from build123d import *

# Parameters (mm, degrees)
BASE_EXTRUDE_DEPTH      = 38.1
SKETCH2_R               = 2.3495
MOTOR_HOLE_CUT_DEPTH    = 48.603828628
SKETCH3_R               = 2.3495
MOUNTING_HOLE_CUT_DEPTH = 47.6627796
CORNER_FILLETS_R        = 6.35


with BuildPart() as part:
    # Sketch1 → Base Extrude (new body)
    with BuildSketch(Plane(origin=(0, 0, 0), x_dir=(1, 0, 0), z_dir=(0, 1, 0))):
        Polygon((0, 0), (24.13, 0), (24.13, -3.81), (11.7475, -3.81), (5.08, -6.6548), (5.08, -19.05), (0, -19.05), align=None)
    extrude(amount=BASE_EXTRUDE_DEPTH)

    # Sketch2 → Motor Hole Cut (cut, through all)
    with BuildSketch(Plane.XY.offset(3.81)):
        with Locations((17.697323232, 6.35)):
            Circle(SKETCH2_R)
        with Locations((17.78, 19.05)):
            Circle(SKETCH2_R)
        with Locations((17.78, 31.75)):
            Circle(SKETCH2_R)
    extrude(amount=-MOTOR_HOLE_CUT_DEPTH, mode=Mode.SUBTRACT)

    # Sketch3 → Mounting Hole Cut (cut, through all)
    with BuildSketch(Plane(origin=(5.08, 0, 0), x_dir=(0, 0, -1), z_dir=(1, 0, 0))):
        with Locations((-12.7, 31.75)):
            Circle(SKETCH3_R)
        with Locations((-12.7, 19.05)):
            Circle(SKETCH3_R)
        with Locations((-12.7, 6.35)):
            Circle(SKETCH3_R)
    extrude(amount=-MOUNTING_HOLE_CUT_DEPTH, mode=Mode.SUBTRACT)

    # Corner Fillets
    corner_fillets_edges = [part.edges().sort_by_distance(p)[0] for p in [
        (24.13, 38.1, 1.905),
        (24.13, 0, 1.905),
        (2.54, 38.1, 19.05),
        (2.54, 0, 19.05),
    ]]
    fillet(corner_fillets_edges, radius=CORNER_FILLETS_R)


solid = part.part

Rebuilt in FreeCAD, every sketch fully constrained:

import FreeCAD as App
import Part
import Sketcher
from FreeCAD import Vector
Q = App.Units.Quantity


def edges_at(feature, points):
    """Names of the edges that pass closest to the given points."""
    edges = feature.Shape.Edges
    near = lambda p: min(range(len(edges)), key=lambda i: edges[i].distToShape(Part.Vertex(*p))[0])
    return sorted({f"Edge{near(p) + 1}" for p in points})

doc = App.newDocument("Part")
body = doc.addObject("PartDesign::Body", "Body")

sketch1 = body.newObject("Sketcher::SketchObject", "Sketch")
sketch1.AttachmentSupport = (doc.getObject("XZ_Plane"), [""])
sketch1.MapMode = "FlatFace"
sketch1.addGeometry([
    Part.LineSegment(Vector(24.1, 0, 0), Vector(0, 0, 0)),
    Part.LineSegment(Vector(0, 0, 0), Vector(0, 19.1, 0)),
    Part.LineSegment(Vector(0, 19.1, 0), Vector(5.1, 19.1, 0)),
    Part.LineSegment(Vector(5.1, 19.1, 0), Vector(5.1, 6.7, 0)),
    Part.LineSegment(Vector(5.1, 6.7, 0), Vector(11.7, 3.8, 0)),
    Part.LineSegment(Vector(11.7, 3.8, 0), Vector(24.1, 3.8, 0)),
    Part.LineSegment(Vector(24.1, 3.8, 0), Vector(24.1, 0, 0)),
], False)
sketch1.addConstraint([
    Sketcher.Constraint("Coincident", 0, 2, 1, 1),
    Sketcher.Constraint("Coincident", 1, 2, 2, 1),
    Sketcher.Constraint("Coincident", 2, 2, 3, 1),
    Sketcher.Constraint("Coincident", 3, 2, 4, 1),
    Sketcher.Constraint("Coincident", 4, 2, 5, 1),
    Sketcher.Constraint("Coincident", 5, 2, 6, 1),
    Sketcher.Constraint("Coincident", 6, 2, 0, 1),
    Sketcher.Constraint("Horizontal", 0),
    Sketcher.Constraint("Vertical", 1),
    Sketcher.Constraint("Horizontal", 2),
    Sketcher.Constraint("Vertical", 3),
    Sketcher.Constraint("Horizontal", 5),
    Sketcher.Constraint("Vertical", 6),
    Sketcher.Constraint("Coincident", 0, 2, -1, 1),
    Sketcher.Constraint("DistanceX", 2, 1, 2, 2, Q("0.2 in")),
    Sketcher.Constraint("DistanceX", 0, 2, 0, 1, Q("0.95 in")),
    Sketcher.Constraint("DistanceY", 1, 1, 1, 2, Q("0.75 in")),
    Sketcher.Constraint("DistanceY", 6, 2, 6, 1, Q("0.15 in")),
    Sketcher.Constraint("DistanceY", 3, 2, 3, 1, Q("0.488 in")),
    Sketcher.Constraint("DistanceX", 5, 1, 5, 2, Q("0.4875 in")),
])
pad1 = body.newObject("PartDesign::Pad", "Pad")
pad1.Profile = sketch1
pad1.Length = Q("1.5 in")
pad1.Reversed = True

sketch2 = body.newObject("Sketcher::SketchObject", "Sketch001")
sketch2.AttachmentSupport = (doc.getObject("XY_Plane"), [""])
sketch2.MapMode = "FlatFace"
sketch2.AttachmentOffset = App.Placement(Vector(0, 0, 0.15 * 25.4), App.Rotation())
sketch2.addGeometry([
    Part.Circle(Vector(17.7, 6.3, 0), Vector(0, 0, 1), 2.3),
    Part.Circle(Vector(17.8, 19.1, 0), Vector(0, 0, 1), 2.3),
    Part.Circle(Vector(17.8, 31.8, 0), Vector(0, 0, 1), 2.3),
], False)
sketch2.addConstraint([
    Sketcher.Constraint("Equal", 0, 1),
    Sketcher.Constraint("Equal", 1, 2),
    Sketcher.Constraint("Vertical", 1, 3, 2, 3),
    Sketcher.Constraint("Diameter", 0, Q("0.185 in")),
    Sketcher.Constraint("DistanceY", 0, 3, 2, 3, Q("1 in")),
    Sketcher.Constraint("DistanceX", -1, 1, 1, 3, Q("0.7 in")),
    Sketcher.Constraint("DistanceY", 0, 3, 1, 3, Q("0.5 in")),
    Sketcher.Constraint("DistanceY", -1, 1, 0, 3, Q("0.25 in")),
    Sketcher.Constraint("DistanceX", -1, 1, 0, 3, Q("17.697323 mm")),
])
pocket1 = body.newObject("PartDesign::Pocket", "Pocket")
pocket1.Profile = sketch2
pocket1.Type = "ThroughAll"

sketch3 = body.newObject("Sketcher::SketchObject", "Sketch002")
sketch3.AttachmentSupport = (doc.getObject("YZ_Plane"), [""])
sketch3.MapMode = "FlatFace"
sketch3.AttachmentOffset = App.Placement(Vector(0, 0, 0.2 * 25.4), App.Rotation())
sketch3.addGeometry([
    Part.Circle(Vector(31.8, 12.7, 0), Vector(0, 0, 1), 2.3),
    Part.Circle(Vector(19.1, 12.7, 0), Vector(0, 0, 1), 2.3),
    Part.Circle(Vector(6.3, 12.7, 0), Vector(0, 0, 1), 2.3),
], False)
sketch3.addConstraint([
    Sketcher.Constraint("Equal", 0, 1),
    Sketcher.Constraint("Equal", 1, 2),
    Sketcher.Constraint("Horizontal", 0, 3, 1, 3),
    Sketcher.Constraint("Horizontal", 1, 3, 2, 3),
    Sketcher.Constraint("Diameter", 0, Q("0.185 in")),
    Sketcher.Constraint("DistanceX", 2, 3, 0, 3, Q("1 in")),
    Sketcher.Constraint("DistanceY", -1, 1, 0, 3, Q("0.5 in")),
    Sketcher.Constraint("DistanceX", 1, 3, 0, 3, Q("0.5 in")),
    Sketcher.Constraint("DistanceX", -1, 1, 0, 3, Q("1.25 in")),
])
pocket2 = body.newObject("PartDesign::Pocket", "Pocket001")
pocket2.Profile = sketch3
pocket2.Type = "ThroughAll"
doc.recompute()

fillet = body.newObject("PartDesign::Fillet", "Fillet")
fillet.Base = (pocket2, edges_at(pocket2, [
    (24.13, 38.1, 1.905),
    (24.13, 0, 1.905),
    (2.54, 38.1, 19.05),
    (2.54, 0, 19.05),
]))
fillet.Radius = Q("0.25 in")

doc.recompute()
